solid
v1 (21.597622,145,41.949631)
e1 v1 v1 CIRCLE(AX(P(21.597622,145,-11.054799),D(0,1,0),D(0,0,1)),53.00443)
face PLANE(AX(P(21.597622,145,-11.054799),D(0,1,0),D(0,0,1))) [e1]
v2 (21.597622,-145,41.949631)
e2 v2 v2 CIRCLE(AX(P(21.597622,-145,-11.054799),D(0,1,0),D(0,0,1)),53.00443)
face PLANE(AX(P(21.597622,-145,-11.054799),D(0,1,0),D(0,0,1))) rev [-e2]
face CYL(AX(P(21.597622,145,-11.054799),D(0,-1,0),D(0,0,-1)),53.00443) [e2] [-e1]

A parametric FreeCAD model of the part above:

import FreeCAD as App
import Part
import Sketcher

doc = App.newDocument("Part")
params = doc.addObject("Spreadsheet::Sheet", "Params")
for row, (alias, value) in enumerate([
    ("pad1_length", "290 mm"),
], start=1):
    params.set(f"A{row}", alias)
    params.set(f"B{row}", "=" + value)
    params.setAlias(f"B{row}", alias)

body = doc.addObject("PartDesign::Body", "Body")

sketch1 = doc.addObject("Sketcher::SketchObject", "Sketch")
body.addObject(sketch1)
sketch1.AttachmentSupport = (doc.XZ_Plane, [""])
sketch1.MapMode = "FlatFace"
sketch1.addGeometry(Part.Circle(App.Vector(22, -11, 0), App.Vector(0, 0, 1), 53), False)
sketch1.addConstraint([
    Sketcher.Constraint("Diameter", 0, 106.008861),
    Sketcher.Constraint("DistanceY", 0, 3, -1, 1, 11.054799),
    Sketcher.Constraint("DistanceX", -1, 1, 0, 3, 21.597622),
])
pad1 = doc.addObject("PartDesign::Pad", "Pad")
body.addObject(pad1)
pad1.Profile = sketch1
pad1.setExpression("Length", "Params.pad1_length")
pad1.Midplane = True

doc.recompute()
